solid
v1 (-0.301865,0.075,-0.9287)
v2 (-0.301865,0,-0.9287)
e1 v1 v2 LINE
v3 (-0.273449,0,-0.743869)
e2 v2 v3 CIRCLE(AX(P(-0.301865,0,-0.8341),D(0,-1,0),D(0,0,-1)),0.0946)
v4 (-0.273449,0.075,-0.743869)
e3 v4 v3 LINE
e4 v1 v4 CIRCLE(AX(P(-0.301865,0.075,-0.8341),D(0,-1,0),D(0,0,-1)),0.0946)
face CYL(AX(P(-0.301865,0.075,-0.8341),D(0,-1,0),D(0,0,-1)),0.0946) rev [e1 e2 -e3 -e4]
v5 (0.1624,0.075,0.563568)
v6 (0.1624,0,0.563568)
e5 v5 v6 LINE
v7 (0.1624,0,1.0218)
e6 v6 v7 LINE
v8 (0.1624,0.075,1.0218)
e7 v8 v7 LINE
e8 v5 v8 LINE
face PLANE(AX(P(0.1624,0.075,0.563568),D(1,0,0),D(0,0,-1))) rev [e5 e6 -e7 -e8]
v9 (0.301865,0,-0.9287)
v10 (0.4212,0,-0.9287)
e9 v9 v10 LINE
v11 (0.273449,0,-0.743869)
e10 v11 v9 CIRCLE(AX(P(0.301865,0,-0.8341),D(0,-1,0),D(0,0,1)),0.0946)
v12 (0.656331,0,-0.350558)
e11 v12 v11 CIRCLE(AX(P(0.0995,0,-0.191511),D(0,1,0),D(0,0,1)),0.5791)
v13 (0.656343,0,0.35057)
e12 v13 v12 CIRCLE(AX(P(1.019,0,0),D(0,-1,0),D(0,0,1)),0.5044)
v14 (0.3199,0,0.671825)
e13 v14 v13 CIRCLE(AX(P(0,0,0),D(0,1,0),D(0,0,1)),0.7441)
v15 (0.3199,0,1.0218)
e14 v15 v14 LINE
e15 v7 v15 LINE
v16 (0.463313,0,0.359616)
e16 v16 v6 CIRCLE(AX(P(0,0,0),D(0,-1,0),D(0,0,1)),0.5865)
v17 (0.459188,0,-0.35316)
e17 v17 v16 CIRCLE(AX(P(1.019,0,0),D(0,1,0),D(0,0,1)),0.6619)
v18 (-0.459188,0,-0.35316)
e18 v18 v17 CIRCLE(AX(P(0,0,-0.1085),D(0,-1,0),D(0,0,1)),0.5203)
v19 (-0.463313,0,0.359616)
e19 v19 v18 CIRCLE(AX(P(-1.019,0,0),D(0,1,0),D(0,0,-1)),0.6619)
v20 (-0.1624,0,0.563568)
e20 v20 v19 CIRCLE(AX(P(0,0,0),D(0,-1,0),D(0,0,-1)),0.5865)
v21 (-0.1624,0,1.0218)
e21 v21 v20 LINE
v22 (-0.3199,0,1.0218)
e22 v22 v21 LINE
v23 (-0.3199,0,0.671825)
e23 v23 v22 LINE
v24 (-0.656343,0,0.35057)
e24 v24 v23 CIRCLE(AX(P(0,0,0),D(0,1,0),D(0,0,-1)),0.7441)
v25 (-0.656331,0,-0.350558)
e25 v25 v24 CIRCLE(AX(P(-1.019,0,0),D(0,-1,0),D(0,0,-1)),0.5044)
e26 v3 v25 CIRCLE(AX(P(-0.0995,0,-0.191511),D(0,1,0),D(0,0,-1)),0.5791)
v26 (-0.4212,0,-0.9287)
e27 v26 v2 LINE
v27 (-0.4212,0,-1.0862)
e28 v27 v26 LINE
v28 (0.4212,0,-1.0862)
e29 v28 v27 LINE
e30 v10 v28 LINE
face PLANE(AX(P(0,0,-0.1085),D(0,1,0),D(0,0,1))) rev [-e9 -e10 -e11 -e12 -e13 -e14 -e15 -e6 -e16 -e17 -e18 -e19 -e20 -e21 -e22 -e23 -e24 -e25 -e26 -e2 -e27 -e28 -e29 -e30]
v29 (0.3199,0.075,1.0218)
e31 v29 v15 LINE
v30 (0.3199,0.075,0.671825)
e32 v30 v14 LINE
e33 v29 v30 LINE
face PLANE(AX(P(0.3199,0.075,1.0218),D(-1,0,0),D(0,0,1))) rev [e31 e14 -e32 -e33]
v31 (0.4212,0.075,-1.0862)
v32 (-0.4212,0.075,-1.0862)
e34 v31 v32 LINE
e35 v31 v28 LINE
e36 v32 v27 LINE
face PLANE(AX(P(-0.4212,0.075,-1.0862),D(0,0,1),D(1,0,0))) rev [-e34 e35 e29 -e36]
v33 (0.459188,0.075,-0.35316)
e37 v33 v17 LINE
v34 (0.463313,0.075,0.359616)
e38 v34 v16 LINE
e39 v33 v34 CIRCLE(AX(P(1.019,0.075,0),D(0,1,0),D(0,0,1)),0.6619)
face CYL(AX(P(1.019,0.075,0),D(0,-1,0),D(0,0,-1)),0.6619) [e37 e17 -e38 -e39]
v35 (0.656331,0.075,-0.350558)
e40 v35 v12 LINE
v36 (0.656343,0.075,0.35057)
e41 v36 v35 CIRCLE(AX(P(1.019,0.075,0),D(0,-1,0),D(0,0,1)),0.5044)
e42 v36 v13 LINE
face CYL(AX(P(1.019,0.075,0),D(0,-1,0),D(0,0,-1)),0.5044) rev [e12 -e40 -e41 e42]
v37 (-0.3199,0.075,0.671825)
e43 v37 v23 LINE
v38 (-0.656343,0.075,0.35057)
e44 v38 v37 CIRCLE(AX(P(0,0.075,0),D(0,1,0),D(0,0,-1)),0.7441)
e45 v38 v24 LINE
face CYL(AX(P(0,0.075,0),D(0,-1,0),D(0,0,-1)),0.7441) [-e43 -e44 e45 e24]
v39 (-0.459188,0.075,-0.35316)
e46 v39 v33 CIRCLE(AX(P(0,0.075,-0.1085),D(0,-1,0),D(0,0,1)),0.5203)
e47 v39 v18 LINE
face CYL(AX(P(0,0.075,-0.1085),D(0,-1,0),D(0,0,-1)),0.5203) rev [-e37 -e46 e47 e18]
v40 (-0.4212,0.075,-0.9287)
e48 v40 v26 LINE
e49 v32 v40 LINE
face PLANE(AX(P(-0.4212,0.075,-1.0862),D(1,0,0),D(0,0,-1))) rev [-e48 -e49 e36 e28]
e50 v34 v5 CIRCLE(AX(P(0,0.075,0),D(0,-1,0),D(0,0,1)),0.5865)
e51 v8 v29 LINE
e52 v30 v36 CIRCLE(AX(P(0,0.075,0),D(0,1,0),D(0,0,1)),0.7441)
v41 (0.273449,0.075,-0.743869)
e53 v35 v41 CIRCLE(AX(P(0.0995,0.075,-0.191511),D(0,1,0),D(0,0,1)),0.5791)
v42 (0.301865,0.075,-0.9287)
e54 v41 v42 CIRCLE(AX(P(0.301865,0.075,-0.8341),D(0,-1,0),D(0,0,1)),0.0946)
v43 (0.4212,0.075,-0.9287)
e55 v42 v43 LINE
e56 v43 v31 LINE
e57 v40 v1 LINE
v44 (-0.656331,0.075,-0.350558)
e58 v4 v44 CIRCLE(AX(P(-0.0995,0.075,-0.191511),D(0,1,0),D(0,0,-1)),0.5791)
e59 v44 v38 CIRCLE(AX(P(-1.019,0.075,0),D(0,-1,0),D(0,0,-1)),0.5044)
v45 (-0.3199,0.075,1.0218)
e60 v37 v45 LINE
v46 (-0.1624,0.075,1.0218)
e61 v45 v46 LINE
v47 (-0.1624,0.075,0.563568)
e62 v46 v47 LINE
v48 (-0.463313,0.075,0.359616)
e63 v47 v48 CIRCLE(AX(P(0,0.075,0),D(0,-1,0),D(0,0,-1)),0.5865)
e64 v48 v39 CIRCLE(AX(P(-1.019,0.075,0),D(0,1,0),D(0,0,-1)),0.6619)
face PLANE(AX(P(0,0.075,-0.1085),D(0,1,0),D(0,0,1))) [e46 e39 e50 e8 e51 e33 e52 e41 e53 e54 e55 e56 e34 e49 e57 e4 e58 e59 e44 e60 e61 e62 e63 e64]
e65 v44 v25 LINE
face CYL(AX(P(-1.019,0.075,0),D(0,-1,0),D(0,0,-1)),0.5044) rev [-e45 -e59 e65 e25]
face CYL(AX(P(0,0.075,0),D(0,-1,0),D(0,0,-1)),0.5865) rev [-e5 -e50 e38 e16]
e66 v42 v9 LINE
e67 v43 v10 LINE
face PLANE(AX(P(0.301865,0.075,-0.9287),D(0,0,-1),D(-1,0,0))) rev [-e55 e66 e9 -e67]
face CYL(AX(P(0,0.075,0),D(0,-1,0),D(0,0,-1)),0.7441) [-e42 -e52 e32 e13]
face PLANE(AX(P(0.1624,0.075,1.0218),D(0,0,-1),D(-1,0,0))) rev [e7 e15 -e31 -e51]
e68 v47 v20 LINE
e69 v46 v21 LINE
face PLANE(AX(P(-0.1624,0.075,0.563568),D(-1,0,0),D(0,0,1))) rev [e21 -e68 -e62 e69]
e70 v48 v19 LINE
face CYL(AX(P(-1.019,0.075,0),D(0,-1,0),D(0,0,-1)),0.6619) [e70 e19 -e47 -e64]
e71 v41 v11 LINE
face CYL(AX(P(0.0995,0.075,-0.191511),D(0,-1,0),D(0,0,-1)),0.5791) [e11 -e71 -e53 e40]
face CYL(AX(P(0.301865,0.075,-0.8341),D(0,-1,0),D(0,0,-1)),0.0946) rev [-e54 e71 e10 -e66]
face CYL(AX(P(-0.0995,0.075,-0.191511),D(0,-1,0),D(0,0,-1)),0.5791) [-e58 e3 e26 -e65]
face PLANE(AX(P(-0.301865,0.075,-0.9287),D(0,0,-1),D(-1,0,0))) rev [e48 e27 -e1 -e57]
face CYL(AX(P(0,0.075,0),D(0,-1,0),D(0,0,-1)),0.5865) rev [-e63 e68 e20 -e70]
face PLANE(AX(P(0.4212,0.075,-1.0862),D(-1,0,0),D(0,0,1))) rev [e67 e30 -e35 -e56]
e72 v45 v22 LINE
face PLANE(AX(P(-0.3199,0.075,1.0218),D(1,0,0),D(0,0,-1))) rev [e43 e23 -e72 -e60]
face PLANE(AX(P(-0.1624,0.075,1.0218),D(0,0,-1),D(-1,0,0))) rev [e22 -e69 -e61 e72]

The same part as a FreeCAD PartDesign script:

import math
import FreeCAD as App
import Part
import Sketcher

V = App.Vector
Q = App.Units.Quantity

doc = App.newDocument("Part")
body = doc.addObject("PartDesign::Body", "Body")

# Sketch on XZ plane
sketch1 = doc.addObject("Sketcher::SketchObject", "Sketch")
body.addObject(sketch1)
sketch1.AttachmentSupport = (doc.XZ_Plane, [""])
sketch1.MapMode = "FlatFace"
sketch1.addGeometry([
    Part.LineSegment(V(0.42, -1.09, 0), V(-0.42, -1.09, 0)),  # 0
    Part.LineSegment(V(-0.42, -1.09, 0), V(-0.42, -0.93, 0)),  # 1
    Part.LineSegment(V(-0.42, -0.93, 0), V(-0.3, -0.93, 0)),  # 2
    Part.ArcOfCircle(Part.Circle(V(-0.3, -0.83, 0), V(0, 0, 1), 0.09), math.radians(-90), math.radians(73)),  # 3
    Part.ArcOfCircle(Part.Circle(V(-0.1, -0.19, 0), V(0, 0, 1), 0.58), math.radians(-164), math.radians(-107)),  # 4
    Part.ArcOfCircle(Part.Circle(V(-1.02, 0, 0), V(0, 0, 1), 0.5), math.radians(-44), math.radians(44)),  # 5
    Part.ArcOfCircle(Part.Circle(V(0, 0, 0), V(0, 0, 1), 0.74), math.radians(115), math.radians(152)),  # 6
    Part.LineSegment(V(-0.32, 0.67, 0), V(-0.32, 1.02, 0)),  # 7
    Part.LineSegment(V(-0.32, 1.02, 0), V(-0.16, 1.02, 0)),  # 8
    Part.LineSegment(V(-0.16, 1.02, 0), V(-0.16, 0.56, 0)),  # 9
    Part.ArcOfCircle(Part.Circle(V(0, 0, 0), V(0, 0, 1), 0.59), math.radians(106), math.radians(142)),  # 10
    Part.ArcOfCircle(Part.Circle(V(-1.02, 0, 0), V(0, 0, 1), 0.66), math.radians(-32), math.radians(33)),  # 11
    Part.ArcOfCircle(Part.Circle(V(0, -0.11, 0), V(0, 0, 1), 0.52), math.radians(-152), math.radians(-28)),  # 12
    Part.ArcOfCircle(Part.Circle(V(1.02, 0, 0), V(0, 0, 1), 0.66), math.radians(147), math.radians(212)),  # 13
    Part.ArcOfCircle(Part.Circle(V(0, 0, 0), V(0, 0, 1), 0.59), math.radians(38), math.radians(74)),  # 14
    Part.LineSegment(V(0.16, 0.56, 0), V(0.16, 1.02, 0)),  # 15
    Part.LineSegment(V(0.16, 1.02, 0), V(0.32, 1.02, 0)),  # 16
    Part.LineSegment(V(0.32, 1.02, 0), V(0.32, 0.67, 0)),  # 17
    Part.ArcOfCircle(Part.Circle(V(0, 0, 0), V(0, 0, 1), 0.74), math.radians(28), math.radians(65)),  # 18
    Part.ArcOfCircle(Part.Circle(V(1.02, 0, 0), V(0, 0, 1), 0.5), math.radians(136), math.radians(224)),  # 19
    Part.ArcOfCircle(Part.Circle(V(0.1, -0.19, 0), V(0, 0, 1), 0.58), math.radians(-73), math.radians(-16)),  # 20
    Part.ArcOfCircle(Part.Circle(V(0.3, -0.83, 0), V(0, 0, 1), 0.09), math.radians(107), math.radians(270)),  # 21
    Part.LineSegment(V(0.3, -0.93, 0), V(0.42, -0.93, 0)),  # 22
    Part.LineSegment(V(0.42, -0.93, 0), V(0.42, -1.09, 0)),  # 23
], False)
sketch1.addConstraint([
    Sketcher.Constraint("Coincident", 0, 2, 1, 1),
    Sketcher.Constraint("Coincident", 1, 2, 2, 1),
    Sketcher.Constraint("Tangent", 2, 2, 3, 1),
    Sketcher.Constraint("Tangent", 3, 2, 4, 2),
    Sketcher.Constraint("Coincident", 4, 1, 5, 1),
    Sketcher.Constraint("Coincident", 5, 2, 6, 2),
    Sketcher.Constraint("Coincident", 6, 1, 7, 1),
    Sketcher.Constraint("Coincident", 7, 2, 8, 1),
    Sketcher.Constraint("Coincident", 8, 2, 9, 1),
    Sketcher.Constraint("Coincident", 9, 2, 10, 1),
    Sketcher.Constraint("Coincident", 10, 2, 11, 2),
    Sketcher.Constraint("Coincident", 11, 1, 12, 1),
    Sketcher.Constraint("Coincident", 12, 2, 13, 2),
    Sketcher.Constraint("Coincident", 13, 1, 14, 1),
    Sketcher.Constraint("Coincident", 14, 2, 15, 1),
    Sketcher.Constraint("Coincident", 15, 2, 16, 1),
    Sketcher.Constraint("Coincident", 16, 2, 17, 1),
    Sketcher.Constraint("Coincident", 17, 2, 18, 2),
    Sketcher.Constraint("Coincident", 18, 1, 19, 1),
    Sketcher.Constraint("Coincident", 19, 2, 20, 2),
    Sketcher.Constraint("Tangent", 20, 1, 21, 1),
    Sketcher.Constraint("Tangent", 21, 2, 22, 1),
    Sketcher.Constraint("Coincident", 22, 2, 23, 1),
    Sketcher.Constraint("Coincident", 23, 2, 0, 1),
    Sketcher.Constraint("Horizontal", 0),
    Sketcher.Constraint("Vertical", 1),
    Sketcher.Constraint("Horizontal", 2),
    Sketcher.Constraint("Vertical", 7),
    Sketcher.Constraint("Horizontal", 8),
    Sketcher.Constraint("Vertical", 9),
    Sketcher.Constraint("Vertical", 15),
    Sketcher.Constraint("Horizontal", 16),
    Sketcher.Constraint("Vertical", 17),
    Sketcher.Constraint("Horizontal", 22),
    Sketcher.Constraint("Vertical", 23),
    Sketcher.Constraint("Coincident", 6, 3, -1, 1),
    Sketcher.Constraint("Coincident", 10, 3, -1, 1),
    Sketcher.Constraint("Coincident", 14, 3, -1, 1),
    Sketcher.Constraint("Coincident", 18, 3, -1, 1),
    Sketcher.Constraint("Coincident", 11, 3, 5, 3),
    Sketcher.Constraint("Coincident", 19, 3, 13, 3),
    Sketcher.Constraint("Equal", 11, 13),
    Sketcher.Constraint("Equal", 10, 14),
    Sketcher.Constraint("Equal", 6, 18),
    Sketcher.Constraint("Equal", 5, 19),
    Sketcher.Constraint("Equal", 4, 20),
    Sketcher.Constraint("Equal", 3, 21),
    Sketcher.Constraint("Symmetric", 5, 3, 13, 3, -1, 1),
    Sketcher.Constraint("Symmetric", 4, 3, 20, 3, -2),
    Sketcher.Constraint("Symmetric", 11, 1, 12, 2, -2),
    Sketcher.Constraint("Symmetric", 8, 2, 15, 2, -2),
    Sketcher.Constraint("Symmetric", 1, 2, 22, 2, -2),
    Sketcher.Constraint("Horizontal", 6, 1, 17, 2),
    Sketcher.Constraint("Equal", 16, 1),
    Sketcher.Constraint("Radius", 3, Q("0.0946 mm")),
    Sketcher.Constraint("Radius", 4, Q("0.5791 mm")),
    Sketcher.Constraint("Radius", 5, Q("0.5044 mm")),
    Sketcher.Constraint("Radius", 6, Q("0.7441 mm")),
    Sketcher.Constraint("Radius", 10, Q("0.5865 mm")),
    Sketcher.Constraint("Radius", 11, Q("0.6619 mm")),
    Sketcher.Constraint("Radius", 12, Q("0.5203 mm")),
    Sketcher.Constraint("DistanceX", 0, 2, 0, 1, Q("0.8424 mm")),
    Sketcher.Constraint("DistanceX", 8, 1, 8, 2, Q("0.1575 mm")),
    Sketcher.Constraint("DistanceX", 5, 3, -1, 1, Q("1.019 mm")),
    Sketcher.Constraint("DistanceX", 4, 3, 20, 3, Q("0.199 mm")),
    Sketcher.Constraint("DistanceY", 5, 2, 9, 2, Q("0.212998 mm")),
    Sketcher.Constraint("DistanceY", 3, 3, -1, 1, Q("0.8341 mm")),
    Sketcher.Constraint("DistanceY", 12, 3, -1, 1, Q("0.1085 mm")),
    Sketcher.Constraint("DistanceY", -1, 1, 7, 2, Q("1.0218 mm")),
    Sketcher.Constraint("DistanceX", 3, 2, 20, 1, Q("0.546899 mm")),
])
pad1 = doc.addObject("PartDesign::Pad", "Pad")
body.addObject(pad1)
pad1.Profile = sketch1
pad1.Length = 0.075
pad1.Reversed = True

doc.recompute()
